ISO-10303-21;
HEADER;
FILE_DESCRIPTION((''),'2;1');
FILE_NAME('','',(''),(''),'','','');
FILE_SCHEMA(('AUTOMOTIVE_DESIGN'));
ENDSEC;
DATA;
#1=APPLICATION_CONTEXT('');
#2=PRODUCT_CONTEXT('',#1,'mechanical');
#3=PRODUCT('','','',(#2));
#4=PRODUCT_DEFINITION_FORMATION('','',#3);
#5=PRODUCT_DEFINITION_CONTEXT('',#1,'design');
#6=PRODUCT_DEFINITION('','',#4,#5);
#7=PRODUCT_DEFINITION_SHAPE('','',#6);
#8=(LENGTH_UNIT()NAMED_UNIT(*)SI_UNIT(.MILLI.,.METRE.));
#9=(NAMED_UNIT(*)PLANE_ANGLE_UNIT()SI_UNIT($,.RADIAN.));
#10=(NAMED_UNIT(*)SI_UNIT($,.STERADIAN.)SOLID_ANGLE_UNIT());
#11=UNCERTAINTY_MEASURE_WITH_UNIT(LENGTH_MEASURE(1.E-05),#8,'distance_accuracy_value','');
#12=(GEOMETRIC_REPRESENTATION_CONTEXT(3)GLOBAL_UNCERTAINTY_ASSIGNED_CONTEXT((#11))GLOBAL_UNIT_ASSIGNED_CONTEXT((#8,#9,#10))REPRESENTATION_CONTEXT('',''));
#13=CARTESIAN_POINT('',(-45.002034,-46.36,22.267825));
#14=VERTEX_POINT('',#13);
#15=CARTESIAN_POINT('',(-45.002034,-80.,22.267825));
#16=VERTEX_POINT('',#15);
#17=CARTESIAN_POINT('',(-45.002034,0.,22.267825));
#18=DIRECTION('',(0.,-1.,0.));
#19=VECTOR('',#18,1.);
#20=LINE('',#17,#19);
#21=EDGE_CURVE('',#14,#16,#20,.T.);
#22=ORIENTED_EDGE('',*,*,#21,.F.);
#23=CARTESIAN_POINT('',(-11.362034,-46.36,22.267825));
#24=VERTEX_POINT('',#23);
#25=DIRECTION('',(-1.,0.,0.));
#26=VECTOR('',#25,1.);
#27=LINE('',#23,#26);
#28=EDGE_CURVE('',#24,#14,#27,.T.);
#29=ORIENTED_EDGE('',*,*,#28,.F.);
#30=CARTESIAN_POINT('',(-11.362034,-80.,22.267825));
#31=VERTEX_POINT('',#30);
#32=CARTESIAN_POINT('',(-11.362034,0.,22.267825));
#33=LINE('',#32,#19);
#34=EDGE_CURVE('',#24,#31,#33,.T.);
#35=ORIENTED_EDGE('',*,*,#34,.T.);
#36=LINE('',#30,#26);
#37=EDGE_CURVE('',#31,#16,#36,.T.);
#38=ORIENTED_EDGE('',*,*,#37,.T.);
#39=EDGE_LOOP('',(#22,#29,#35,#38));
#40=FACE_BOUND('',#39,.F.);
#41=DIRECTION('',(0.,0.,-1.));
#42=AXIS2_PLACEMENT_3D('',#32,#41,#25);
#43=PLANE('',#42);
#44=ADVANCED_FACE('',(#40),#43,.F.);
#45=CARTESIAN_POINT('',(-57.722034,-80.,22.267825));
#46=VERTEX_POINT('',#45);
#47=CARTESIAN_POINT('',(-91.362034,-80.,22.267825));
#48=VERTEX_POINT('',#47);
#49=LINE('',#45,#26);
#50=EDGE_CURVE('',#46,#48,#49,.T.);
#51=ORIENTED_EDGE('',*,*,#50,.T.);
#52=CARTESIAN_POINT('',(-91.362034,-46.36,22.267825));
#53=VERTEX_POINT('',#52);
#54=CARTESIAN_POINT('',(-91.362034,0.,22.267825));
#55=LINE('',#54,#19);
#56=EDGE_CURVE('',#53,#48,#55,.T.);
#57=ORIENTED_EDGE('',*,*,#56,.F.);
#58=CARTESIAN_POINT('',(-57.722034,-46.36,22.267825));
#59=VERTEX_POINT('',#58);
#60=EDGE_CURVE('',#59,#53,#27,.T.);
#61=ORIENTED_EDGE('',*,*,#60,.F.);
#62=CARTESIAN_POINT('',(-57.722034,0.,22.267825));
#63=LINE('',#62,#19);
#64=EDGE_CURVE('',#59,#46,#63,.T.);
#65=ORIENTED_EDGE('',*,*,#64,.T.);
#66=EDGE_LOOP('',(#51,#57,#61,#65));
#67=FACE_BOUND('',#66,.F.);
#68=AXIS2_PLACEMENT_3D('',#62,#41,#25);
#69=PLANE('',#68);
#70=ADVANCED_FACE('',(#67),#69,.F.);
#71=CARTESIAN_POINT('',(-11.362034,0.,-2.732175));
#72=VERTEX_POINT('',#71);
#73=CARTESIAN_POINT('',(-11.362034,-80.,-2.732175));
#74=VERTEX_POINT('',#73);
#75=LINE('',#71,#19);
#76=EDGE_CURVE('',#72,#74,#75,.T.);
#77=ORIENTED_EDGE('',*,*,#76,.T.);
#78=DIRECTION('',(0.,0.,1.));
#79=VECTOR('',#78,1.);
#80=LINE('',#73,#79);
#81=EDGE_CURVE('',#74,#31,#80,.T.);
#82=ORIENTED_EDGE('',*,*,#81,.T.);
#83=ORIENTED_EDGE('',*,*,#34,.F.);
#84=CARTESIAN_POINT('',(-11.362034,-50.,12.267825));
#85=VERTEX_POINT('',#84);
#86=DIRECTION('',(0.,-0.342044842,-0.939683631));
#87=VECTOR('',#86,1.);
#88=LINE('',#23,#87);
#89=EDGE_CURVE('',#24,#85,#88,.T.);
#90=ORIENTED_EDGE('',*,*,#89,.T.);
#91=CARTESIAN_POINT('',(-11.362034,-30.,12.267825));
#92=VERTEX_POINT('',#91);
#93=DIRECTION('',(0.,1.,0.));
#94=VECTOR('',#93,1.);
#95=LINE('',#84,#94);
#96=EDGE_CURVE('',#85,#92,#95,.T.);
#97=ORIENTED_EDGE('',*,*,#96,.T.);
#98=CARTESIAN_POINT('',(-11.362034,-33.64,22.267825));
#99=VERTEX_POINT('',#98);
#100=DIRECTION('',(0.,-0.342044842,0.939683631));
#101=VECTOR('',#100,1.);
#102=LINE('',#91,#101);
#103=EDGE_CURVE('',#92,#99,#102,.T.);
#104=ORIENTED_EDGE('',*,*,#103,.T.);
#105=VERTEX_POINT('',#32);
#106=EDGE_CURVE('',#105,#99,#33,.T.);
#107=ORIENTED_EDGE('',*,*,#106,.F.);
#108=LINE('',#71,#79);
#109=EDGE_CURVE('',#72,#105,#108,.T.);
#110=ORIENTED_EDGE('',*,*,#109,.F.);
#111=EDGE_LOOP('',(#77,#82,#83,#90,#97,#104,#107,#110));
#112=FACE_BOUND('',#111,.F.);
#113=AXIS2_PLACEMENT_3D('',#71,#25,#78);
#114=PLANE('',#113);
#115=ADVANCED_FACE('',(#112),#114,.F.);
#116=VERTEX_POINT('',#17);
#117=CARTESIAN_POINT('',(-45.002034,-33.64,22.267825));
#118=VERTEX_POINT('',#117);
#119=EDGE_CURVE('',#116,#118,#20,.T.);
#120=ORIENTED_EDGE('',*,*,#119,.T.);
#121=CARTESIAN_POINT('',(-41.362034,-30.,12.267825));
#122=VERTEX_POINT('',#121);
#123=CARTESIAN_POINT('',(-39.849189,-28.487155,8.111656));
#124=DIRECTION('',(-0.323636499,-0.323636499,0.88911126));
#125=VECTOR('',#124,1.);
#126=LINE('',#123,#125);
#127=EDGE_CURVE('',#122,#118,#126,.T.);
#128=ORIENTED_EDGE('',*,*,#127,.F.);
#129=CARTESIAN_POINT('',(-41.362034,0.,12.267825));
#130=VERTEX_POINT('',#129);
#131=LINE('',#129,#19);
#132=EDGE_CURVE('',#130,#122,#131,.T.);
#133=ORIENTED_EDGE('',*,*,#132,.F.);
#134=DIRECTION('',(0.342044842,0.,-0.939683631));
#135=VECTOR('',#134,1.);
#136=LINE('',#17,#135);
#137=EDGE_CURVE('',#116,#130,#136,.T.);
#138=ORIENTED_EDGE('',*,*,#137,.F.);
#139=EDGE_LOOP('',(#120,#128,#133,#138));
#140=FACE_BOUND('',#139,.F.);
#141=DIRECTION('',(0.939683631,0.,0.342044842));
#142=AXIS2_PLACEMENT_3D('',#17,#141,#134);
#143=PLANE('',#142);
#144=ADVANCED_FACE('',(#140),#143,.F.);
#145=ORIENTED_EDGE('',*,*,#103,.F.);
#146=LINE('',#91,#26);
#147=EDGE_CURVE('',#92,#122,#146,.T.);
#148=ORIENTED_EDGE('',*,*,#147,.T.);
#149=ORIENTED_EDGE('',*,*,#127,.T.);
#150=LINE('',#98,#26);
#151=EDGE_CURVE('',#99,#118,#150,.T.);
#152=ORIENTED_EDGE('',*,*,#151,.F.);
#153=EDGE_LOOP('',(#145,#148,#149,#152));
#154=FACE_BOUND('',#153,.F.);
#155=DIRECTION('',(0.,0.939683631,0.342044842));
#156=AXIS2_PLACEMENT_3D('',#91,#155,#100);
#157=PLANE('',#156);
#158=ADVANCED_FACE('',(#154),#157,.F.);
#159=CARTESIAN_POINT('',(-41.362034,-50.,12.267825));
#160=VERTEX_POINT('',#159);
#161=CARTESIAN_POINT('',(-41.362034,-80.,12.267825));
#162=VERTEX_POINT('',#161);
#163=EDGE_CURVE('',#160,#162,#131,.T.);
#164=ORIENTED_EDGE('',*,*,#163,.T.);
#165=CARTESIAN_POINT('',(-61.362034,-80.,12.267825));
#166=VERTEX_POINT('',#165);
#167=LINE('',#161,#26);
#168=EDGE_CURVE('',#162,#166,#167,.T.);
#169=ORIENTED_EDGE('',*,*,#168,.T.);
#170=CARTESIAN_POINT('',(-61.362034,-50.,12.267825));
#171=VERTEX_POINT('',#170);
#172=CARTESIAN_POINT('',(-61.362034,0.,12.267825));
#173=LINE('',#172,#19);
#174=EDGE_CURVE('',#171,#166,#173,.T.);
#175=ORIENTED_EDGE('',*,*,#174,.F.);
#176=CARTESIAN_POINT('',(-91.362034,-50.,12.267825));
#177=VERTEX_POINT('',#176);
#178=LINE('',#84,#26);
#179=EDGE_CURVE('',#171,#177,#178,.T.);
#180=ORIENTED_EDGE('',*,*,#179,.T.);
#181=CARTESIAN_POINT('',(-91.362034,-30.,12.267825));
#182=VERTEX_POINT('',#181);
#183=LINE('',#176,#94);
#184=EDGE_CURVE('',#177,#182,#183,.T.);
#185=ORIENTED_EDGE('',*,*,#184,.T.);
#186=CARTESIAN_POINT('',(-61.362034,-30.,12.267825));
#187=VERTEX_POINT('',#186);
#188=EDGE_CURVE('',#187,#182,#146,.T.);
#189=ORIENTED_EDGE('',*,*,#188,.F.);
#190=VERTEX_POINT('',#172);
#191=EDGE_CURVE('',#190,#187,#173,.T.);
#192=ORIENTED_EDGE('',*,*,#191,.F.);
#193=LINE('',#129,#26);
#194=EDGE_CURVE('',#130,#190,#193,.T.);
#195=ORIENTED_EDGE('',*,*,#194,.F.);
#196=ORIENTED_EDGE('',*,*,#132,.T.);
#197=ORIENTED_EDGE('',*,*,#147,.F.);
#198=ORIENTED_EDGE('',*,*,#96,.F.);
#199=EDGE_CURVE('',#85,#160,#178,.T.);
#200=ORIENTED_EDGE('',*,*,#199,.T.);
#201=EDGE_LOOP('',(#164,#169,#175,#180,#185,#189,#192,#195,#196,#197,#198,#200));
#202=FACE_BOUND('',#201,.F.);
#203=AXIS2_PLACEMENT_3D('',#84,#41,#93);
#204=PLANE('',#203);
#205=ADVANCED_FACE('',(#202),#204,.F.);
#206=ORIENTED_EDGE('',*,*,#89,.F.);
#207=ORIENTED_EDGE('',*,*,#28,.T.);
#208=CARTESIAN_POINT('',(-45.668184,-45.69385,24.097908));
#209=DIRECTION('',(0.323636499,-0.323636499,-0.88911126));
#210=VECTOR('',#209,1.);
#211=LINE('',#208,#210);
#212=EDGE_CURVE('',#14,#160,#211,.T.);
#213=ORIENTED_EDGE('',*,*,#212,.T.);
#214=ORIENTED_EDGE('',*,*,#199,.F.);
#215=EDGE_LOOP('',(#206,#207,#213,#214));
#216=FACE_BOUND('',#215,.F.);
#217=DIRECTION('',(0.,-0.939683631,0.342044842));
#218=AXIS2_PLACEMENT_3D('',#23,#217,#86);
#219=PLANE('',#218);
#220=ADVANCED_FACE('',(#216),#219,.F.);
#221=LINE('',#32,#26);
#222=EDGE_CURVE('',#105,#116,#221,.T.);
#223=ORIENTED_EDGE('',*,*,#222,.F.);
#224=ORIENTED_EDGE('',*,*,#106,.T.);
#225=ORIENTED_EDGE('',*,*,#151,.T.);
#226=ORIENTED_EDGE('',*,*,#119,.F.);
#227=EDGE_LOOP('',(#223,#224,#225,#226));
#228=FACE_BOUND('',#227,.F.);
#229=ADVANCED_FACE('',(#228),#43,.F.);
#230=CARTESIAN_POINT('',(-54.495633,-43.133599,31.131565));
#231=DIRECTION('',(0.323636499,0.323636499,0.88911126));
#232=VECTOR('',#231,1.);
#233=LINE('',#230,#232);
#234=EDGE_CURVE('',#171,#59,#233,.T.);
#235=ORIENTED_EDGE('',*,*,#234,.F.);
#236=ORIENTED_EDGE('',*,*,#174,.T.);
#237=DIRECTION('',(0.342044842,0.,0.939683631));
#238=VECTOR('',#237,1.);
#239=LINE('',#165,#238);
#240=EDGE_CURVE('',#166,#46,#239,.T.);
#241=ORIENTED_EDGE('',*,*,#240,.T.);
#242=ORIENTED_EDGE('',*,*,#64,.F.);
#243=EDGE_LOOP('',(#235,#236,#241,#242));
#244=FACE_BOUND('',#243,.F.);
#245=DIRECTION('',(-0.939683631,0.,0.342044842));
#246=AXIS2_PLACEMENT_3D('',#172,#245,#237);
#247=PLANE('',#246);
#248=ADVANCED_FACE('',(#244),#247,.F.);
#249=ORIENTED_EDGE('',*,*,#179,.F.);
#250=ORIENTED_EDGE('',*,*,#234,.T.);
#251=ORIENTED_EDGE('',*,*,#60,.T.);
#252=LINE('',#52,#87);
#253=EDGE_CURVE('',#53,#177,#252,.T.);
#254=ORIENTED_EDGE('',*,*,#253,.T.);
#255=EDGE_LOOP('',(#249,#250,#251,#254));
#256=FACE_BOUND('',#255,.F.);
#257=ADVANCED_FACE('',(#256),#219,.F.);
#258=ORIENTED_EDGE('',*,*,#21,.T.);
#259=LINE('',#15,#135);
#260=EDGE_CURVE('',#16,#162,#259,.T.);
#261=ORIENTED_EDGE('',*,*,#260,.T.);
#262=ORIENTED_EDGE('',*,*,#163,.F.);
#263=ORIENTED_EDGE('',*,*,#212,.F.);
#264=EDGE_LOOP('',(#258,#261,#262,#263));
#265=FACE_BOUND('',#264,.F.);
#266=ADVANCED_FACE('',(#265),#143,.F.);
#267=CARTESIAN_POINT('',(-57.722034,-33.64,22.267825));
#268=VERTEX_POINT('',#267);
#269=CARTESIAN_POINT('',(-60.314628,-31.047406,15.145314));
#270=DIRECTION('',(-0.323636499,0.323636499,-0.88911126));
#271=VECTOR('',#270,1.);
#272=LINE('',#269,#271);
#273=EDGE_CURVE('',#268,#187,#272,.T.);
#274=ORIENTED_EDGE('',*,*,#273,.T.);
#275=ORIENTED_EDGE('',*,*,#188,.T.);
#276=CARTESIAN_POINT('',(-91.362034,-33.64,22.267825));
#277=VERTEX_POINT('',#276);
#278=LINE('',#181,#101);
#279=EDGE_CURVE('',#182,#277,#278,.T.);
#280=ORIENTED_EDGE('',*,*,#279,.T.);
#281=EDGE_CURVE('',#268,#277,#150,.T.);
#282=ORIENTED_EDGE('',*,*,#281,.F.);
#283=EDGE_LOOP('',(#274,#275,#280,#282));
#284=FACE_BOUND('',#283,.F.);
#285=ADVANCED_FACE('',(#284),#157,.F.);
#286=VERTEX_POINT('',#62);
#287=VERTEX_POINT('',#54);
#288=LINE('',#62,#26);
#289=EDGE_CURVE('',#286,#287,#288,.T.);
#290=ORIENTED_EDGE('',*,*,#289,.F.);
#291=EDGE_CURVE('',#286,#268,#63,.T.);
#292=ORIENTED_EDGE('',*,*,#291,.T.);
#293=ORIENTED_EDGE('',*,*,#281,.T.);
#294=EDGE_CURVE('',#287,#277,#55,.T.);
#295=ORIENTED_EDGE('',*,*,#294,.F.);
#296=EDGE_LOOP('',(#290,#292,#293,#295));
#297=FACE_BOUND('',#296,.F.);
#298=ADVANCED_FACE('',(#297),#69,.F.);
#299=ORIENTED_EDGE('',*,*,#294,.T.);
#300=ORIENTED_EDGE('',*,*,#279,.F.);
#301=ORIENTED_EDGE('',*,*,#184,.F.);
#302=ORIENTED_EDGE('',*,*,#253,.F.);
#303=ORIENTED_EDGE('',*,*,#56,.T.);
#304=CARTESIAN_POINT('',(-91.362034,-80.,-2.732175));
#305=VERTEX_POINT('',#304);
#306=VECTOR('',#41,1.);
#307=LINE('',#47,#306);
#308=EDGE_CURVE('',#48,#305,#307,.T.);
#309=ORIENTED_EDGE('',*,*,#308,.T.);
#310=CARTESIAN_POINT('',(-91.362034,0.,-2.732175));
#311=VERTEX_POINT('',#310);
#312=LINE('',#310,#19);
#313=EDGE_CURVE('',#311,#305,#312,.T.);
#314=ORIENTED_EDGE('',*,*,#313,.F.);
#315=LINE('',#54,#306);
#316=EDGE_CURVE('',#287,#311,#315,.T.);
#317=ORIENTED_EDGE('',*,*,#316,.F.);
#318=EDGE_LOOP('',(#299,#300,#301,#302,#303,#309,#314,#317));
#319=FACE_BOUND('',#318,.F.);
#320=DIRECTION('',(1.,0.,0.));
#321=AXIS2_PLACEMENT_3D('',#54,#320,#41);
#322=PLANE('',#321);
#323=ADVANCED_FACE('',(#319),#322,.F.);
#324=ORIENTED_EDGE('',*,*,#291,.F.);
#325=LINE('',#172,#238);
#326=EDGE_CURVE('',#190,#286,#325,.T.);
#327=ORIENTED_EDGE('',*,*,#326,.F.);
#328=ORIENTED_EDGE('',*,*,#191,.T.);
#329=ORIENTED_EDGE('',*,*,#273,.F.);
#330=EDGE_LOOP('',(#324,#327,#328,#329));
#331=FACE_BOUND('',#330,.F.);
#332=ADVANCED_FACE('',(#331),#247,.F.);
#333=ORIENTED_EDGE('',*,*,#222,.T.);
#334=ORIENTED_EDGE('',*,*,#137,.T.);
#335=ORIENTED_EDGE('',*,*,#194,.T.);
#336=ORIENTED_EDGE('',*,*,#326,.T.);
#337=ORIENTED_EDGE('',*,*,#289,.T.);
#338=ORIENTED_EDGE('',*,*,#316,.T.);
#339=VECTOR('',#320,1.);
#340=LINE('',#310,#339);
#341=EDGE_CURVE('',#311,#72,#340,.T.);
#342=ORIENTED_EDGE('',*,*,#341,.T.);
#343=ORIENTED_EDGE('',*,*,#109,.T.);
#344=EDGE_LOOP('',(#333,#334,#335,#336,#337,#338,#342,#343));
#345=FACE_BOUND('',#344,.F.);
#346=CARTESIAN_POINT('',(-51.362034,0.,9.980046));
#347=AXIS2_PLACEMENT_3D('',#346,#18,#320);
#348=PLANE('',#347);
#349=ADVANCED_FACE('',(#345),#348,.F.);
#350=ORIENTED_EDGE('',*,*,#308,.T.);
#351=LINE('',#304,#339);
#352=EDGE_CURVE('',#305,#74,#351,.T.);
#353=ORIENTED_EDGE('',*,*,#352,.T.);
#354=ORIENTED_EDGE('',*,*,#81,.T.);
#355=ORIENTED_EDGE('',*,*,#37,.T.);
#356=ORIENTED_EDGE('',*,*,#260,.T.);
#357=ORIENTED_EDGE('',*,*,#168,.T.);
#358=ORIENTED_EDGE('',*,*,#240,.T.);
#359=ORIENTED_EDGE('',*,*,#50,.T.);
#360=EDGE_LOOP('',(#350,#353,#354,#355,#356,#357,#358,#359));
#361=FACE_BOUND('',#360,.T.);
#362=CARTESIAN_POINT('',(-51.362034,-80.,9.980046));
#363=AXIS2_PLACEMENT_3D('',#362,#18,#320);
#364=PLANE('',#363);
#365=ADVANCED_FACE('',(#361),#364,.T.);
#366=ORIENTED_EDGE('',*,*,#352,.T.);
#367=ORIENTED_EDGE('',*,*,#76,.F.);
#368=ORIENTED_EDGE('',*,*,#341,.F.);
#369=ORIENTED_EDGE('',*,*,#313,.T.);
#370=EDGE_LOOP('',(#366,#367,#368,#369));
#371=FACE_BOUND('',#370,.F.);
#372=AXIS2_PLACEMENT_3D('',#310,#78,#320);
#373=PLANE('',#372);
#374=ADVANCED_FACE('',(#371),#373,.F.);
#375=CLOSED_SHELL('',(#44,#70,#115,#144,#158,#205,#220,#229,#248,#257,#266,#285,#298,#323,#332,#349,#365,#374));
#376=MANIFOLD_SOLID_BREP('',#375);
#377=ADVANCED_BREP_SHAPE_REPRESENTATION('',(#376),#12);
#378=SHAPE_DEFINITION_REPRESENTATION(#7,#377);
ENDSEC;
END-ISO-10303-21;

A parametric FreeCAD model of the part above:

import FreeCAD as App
import Part
import Sketcher

doc = App.newDocument("Part")
body = doc.addObject("PartDesign::Body", "Body")

# Sketch on XZ plane
sketch1 = doc.addObject("Sketcher::SketchObject", "Sketch")
body.addObject(sketch1)
sketch1.AttachmentSupport = (doc.XZ_Plane, [""])
sketch1.MapMode = "FlatFace"
sketch1.addGeometry(Part.LineSegment(App.Vector(-91, -3, 0), App.Vector(-11, -3, 0)), False)
sketch1.addGeometry(Part.LineSegment(App.Vector(-11, -3, 0), App.Vector(-11, 22, 0)), False)
sketch1.addGeometry(Part.LineSegment(App.Vector(-11, 22, 0), App.Vector(-45, 22, 0)), False)
sketch1.addGeometry(Part.LineSegment(App.Vector(-45, 22, 0), App.Vector(-41, 12, 0)), False)
sketch1.addGeometry(Part.LineSegment(App.Vector(-41, 12, 0), App.Vector(-61, 12, 0)), False)
sketch1.addGeometry(Part.LineSegment(App.Vector(-61, 12, 0), App.Vector(-58, 22, 0)), False)
sketch1.addGeometry(Part.LineSegment(App.Vector(-58, 22, 0), App.Vector(-91, 22, 0)), False)
sketch1.addGeometry(Part.LineSegment(App.Vector(-91, 22, 0), App.Vector(-91, -3, 0)), False)
sketch1.addConstraint(Sketcher.Constraint("Coincident", 0, 2, 1, 1))
sketch1.addConstraint(Sketcher.Constraint("Coincident", 1, 2, 2, 1))
sketch1.addConstraint(Sketcher.Constraint("Coincident", 2, 2, 3, 1))
sketch1.addConstraint(Sketcher.Constraint("Coincident", 3, 2, 4, 1))
sketch1.addConstraint(Sketcher.Constraint("Coincident", 4, 2, 5, 1))
sketch1.addConstraint(Sketcher.Constraint("Coincident", 5, 2, 6, 1))
sketch1.addConstraint(Sketcher.Constraint("Coincident", 6, 2, 7, 1))
sketch1.addConstraint(Sketcher.Constraint("Coincident", 7, 2, 0, 1))
sketch1.addConstraint(Sketcher.Constraint("Horizontal", 0))
sketch1.addConstraint(Sketcher.Constraint("Vertical", 1))
sketch1.addConstraint(Sketcher.Constraint("Horizontal", 2))
sketch1.addConstraint(Sketcher.Constraint("Horizontal", 4))
sketch1.addConstraint(Sketcher.Constraint("Horizontal", 6))
sketch1.addConstraint(Sketcher.Constraint("Vertical", 7))
sketch1.addConstraint(Sketcher.Constraint("Horizontal", 2, 2, 5, 2))
sketch1.addConstraint(Sketcher.Constraint("Equal", 2, 6))
sketch1.addConstraint(Sketcher.Constraint("Equal", 3, 5))
sketch1.addConstraint(Sketcher.Constraint("DistanceX", 0, 1, 0, 2, 80.0))
sketch1.addConstraint(Sketcher.Constraint("DistanceX", 4, 2, 4, 1, 20.0))
sketch1.addConstraint(Sketcher.Constraint("DistanceY", 1, 1, 1, 2, 25.0))
sketch1.addConstraint(Sketcher.Constraint("DistanceY", 3, 2, 2, 2, 10.0))
sketch1.addConstraint(Sketcher.Constraint("DistanceX", 2, 2, 2, 1, 33.64))
sketch1.addConstraint(Sketcher.Constraint("DistanceX", 0, 2, -1, 1, 11.362034))
sketch1.addConstraint(Sketcher.Constraint("DistanceY", 0, 2, -1, 1, 2.732175))
pad1 = doc.addObject("PartDesign::Pad", "Pad")
body.addObject(pad1)
pad1.Profile = sketch1
pad1.Length = 80

# Sketch on YZ plane
sketch2 = doc.addObject("Sketcher::SketchObject", "Sketch001")
body.addObject(sketch2)
sketch2.AttachmentSupport = (doc.YZ_Plane, [""])
sketch2.MapMode = "FlatFace"
sketch2.AttachmentOffset = App.Placement(App.Vector(0, 0, -11.362034), App.Rotation())
sketch2.addGeometry(Part.LineSegment(App.Vector(-46, 22, 0), App.Vector(-50, 12, 0)), False)
sketch2.addGeometry(Part.LineSegment(App.Vector(-50, 12, 0), App.Vector(-30, 12, 0)), False)
sketch2.addGeometry(Part.LineSegment(App.Vector(-30, 12, 0), App.Vector(-34, 22, 0)), False)
sketch2.addGeometry(Part.LineSegment(App.Vector(-34, 22, 0), App.Vector(-46, 22, 0)), False)
sketch2.addConstraint(Sketcher.Constraint("Coincident", 0, 2, 1, 1))
sketch2.addConstraint(Sketcher.Constraint("Coincident", 1, 2, 2, 1))
sketch2.addConstraint(Sketcher.Constraint("Coincident", 2, 2, 3, 1))
sketch2.addConstraint(Sketcher.Constraint("Coincident", 3, 2, 0, 1))
sketch2.addConstraint(Sketcher.Constraint("Horizontal", 1))
sketch2.addConstraint(Sketcher.Constraint("Horizontal", 3))
sketch2.addConstraint(Sketcher.Constraint("Equal", 0, 2))
sketch2.addConstraint(Sketcher.Constraint("DistanceX", 1, 1, 1, 2, 20.0))
sketch2.addConstraint(Sketcher.Constraint("DistanceX", 0, 2, -1, 1, 50.0))
sketch2.addConstraint(Sketcher.Constraint("DistanceY", 1, 2, 2, 2, 10.0))
sketch2.addConstraint(Sketcher.Constraint("DistanceX", 3, 2, 3, 1, 12.72))
sketch2.addConstraint(Sketcher.Constraint("DistanceY", -1, 1, 0, 2, 12.267825))
pocket1 = doc.addObject("PartDesign::Pocket", "Pocket")
body.addObject(pocket1)
pocket1.Profile = sketch2
pocket1.Length = 80

doc.recompute()
